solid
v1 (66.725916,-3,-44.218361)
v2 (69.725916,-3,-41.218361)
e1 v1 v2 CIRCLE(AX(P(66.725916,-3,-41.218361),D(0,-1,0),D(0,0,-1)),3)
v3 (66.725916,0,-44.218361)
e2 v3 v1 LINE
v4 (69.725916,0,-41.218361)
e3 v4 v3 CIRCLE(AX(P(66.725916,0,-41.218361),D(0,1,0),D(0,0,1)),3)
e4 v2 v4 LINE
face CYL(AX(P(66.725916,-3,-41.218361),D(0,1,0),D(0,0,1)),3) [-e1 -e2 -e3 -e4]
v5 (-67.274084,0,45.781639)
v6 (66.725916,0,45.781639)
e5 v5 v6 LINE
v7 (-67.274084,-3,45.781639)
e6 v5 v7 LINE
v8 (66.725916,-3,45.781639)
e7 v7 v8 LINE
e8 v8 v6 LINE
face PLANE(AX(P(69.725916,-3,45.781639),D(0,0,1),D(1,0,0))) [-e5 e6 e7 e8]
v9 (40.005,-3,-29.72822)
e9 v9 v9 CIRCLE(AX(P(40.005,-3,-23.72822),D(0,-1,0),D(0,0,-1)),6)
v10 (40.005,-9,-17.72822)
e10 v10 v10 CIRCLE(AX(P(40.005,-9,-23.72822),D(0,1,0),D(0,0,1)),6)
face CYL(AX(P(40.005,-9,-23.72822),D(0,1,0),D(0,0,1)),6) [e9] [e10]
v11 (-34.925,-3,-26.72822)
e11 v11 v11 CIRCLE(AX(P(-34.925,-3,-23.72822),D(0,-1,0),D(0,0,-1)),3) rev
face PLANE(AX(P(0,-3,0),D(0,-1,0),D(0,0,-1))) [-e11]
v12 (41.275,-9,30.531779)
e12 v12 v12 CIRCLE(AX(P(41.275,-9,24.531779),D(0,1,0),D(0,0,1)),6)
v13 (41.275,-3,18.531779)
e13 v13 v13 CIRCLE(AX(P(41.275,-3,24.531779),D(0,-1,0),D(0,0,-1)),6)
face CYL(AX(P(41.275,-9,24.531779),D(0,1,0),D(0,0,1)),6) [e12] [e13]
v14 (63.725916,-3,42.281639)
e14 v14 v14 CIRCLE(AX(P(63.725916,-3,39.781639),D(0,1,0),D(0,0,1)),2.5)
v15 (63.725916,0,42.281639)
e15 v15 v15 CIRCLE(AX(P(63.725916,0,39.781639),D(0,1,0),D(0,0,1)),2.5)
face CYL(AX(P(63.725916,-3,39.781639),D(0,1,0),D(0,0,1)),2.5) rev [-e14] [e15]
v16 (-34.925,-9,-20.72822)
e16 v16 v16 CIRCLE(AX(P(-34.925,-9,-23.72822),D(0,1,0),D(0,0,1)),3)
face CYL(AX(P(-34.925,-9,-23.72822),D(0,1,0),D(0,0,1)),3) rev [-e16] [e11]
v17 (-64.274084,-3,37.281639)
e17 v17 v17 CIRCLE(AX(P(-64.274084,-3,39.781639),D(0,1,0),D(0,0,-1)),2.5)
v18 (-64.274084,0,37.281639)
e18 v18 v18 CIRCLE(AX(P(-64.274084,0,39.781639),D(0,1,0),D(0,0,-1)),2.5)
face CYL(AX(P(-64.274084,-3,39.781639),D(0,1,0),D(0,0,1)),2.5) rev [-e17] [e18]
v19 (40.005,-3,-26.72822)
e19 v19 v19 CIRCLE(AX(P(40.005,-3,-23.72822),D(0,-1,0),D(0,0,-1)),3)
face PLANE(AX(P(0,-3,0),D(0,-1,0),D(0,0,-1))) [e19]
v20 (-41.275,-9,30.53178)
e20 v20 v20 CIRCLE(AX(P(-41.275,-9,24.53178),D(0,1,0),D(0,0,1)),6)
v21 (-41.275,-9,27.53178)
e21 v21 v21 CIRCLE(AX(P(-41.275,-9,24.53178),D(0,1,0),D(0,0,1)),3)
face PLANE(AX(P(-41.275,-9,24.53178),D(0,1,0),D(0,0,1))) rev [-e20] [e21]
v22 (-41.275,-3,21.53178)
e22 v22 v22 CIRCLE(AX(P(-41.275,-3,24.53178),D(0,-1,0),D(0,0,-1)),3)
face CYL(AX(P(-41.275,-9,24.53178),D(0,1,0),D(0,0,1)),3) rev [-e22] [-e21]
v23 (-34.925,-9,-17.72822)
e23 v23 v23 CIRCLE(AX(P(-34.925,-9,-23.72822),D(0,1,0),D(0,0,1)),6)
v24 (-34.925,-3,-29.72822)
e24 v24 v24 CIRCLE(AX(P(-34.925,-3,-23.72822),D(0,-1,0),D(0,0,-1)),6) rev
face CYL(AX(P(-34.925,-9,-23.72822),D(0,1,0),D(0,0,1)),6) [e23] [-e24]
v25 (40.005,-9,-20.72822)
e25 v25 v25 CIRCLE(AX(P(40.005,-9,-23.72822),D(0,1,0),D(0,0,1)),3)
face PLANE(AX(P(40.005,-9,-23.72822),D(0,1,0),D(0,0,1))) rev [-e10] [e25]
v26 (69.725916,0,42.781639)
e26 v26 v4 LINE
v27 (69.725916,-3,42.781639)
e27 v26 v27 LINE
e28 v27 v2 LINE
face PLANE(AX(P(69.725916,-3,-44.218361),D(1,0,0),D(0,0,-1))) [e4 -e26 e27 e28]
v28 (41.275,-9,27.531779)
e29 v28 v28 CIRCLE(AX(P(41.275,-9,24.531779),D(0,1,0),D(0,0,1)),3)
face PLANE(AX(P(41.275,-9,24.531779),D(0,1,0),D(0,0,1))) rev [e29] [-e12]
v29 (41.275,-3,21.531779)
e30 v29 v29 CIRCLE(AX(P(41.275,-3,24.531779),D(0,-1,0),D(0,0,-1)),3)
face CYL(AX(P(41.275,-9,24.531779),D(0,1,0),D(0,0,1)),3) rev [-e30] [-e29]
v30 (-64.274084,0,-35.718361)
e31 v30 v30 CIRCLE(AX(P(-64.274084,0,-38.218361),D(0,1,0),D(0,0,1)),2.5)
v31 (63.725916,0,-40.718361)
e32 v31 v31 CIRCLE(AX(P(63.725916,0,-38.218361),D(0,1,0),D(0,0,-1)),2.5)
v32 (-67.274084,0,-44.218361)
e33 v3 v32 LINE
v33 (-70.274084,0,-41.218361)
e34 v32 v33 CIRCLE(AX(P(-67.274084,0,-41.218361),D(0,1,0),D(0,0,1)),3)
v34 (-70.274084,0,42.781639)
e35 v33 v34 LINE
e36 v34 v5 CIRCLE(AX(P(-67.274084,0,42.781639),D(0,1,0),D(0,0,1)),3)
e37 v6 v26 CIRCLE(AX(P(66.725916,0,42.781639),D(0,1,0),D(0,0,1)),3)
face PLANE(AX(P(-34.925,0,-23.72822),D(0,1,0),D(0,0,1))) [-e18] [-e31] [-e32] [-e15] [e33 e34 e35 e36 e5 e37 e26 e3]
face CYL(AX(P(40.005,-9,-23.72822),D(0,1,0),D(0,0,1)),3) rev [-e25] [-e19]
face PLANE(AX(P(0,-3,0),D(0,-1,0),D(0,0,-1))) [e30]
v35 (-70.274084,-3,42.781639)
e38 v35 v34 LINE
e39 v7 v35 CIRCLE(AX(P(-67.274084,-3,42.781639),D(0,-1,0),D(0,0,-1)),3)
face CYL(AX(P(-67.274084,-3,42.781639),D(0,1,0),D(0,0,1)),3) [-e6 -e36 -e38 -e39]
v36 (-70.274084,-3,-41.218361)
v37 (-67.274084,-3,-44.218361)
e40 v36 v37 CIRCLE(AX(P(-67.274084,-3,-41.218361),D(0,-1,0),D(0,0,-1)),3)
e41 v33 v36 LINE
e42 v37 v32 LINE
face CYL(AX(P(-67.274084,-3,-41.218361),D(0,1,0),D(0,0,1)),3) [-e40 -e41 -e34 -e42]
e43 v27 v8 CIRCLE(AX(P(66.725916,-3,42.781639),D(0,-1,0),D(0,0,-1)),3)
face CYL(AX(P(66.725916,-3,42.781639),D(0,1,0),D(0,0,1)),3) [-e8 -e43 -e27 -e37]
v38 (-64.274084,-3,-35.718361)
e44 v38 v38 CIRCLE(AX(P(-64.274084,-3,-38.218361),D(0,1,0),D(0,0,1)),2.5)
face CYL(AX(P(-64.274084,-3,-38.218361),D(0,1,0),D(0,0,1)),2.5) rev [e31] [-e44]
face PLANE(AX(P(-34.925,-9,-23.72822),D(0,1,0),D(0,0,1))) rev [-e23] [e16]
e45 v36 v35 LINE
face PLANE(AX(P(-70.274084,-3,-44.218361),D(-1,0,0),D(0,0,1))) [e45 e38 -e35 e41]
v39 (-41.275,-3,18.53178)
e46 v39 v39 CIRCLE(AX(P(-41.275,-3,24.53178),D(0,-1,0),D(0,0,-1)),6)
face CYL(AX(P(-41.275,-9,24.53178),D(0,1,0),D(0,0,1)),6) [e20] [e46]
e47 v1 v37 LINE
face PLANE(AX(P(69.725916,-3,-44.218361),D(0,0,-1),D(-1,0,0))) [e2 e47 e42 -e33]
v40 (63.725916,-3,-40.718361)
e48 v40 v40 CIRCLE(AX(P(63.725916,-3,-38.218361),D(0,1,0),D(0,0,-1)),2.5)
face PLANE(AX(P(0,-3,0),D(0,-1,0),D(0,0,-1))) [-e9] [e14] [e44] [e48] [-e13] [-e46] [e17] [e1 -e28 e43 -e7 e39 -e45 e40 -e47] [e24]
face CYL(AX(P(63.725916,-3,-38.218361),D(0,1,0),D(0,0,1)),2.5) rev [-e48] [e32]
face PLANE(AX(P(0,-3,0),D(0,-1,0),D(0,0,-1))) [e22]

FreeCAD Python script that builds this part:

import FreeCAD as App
import Part
import Sketcher
from FreeCAD import Vector


def edges_at(feature, points):
    """Names of the edges that pass closest to the given points."""
    edges = feature.Shape.Edges
    near = lambda p: min(range(len(edges)), key=lambda i: edges[i].distToShape(Part.Vertex(*p))[0])
    return sorted({f"Edge{near(p) + 1}" for p in points})

doc = App.newDocument("Part")
body = doc.addObject("PartDesign::Body", "Body")

# Sketch on XZ plane
sketch1 = body.newObject("Sketcher::SketchObject", "Sketch")
sketch1.AttachmentSupport = (doc.getObject("XZ_Plane"), [""])
sketch1.MapMode = "FlatFace"
sketch1.addGeometry([
    Part.Circle(Vector(-34.9, -23.7, 0), Vector(0, 0, 1), 6),
    Part.Circle(Vector(-34.9, -23.7, 0), Vector(0, 0, 1), 3),
], False)
sketch1.addConstraint([
    Sketcher.Constraint("Coincident", 1, 3, 0, 3),
    Sketcher.Constraint("Diameter", 0, 12.0),
    Sketcher.Constraint("Diameter", 1, 6.0),
    Sketcher.Constraint("DistanceX", 0, 3, -1, 1, 34.925),
    Sketcher.Constraint("DistanceY", 0, 3, -1, 1, 23.72822),
])
pad1 = body.newObject("PartDesign::Pad", "Pad")
pad1.Profile = sketch1
pad1.Length = 9
body2 = doc.addObject("PartDesign::Body", "Body001")

# Sketch on XZ plane
sketch2 = body2.newObject("Sketcher::SketchObject", "Sketch001")
sketch2.AttachmentSupport = (doc.getObject("XZ_Plane001"), [""])
sketch2.MapMode = "FlatFace"
sketch2.addGeometry([
    Part.Circle(Vector(40, -23.7, 0), Vector(0, 0, 1), 6),
    Part.Circle(Vector(40, -23.7, 0), Vector(0, 0, 1), 3),
], False)
sketch2.addConstraint([
    Sketcher.Constraint("Coincident", 1, 3, 0, 3),
    Sketcher.Constraint("Diameter", 0, 12.0),
    Sketcher.Constraint("Diameter", 1, 6.0),
    Sketcher.Constraint("DistanceX", -1, 1, 0, 3, 40.005),
    Sketcher.Constraint("DistanceY", 0, 3, -1, 1, 23.72822),
])
pad2 = body2.newObject("PartDesign::Pad", "Pad001")
pad2.Profile = sketch2
pad2.Length = 9
body3 = doc.addObject("PartDesign::Body", "Body002")

# Sketch on XZ plane
sketch3 = body3.newObject("Sketcher::SketchObject", "Sketch002")
sketch3.AttachmentSupport = (doc.getObject("XZ_Plane002"), [""])
sketch3.MapMode = "FlatFace"
sketch3.addGeometry([
    Part.Circle(Vector(41.3, 24.5, 0), Vector(0, 0, 1), 6),
    Part.Circle(Vector(41.3, 24.5, 0), Vector(0, 0, 1), 3),
], False)
sketch3.addConstraint([
    Sketcher.Constraint("Coincident", 1, 3, 0, 3),
    Sketcher.Constraint("Diameter", 0, 12.0),
    Sketcher.Constraint("Diameter", 1, 6.0),
    Sketcher.Constraint("DistanceX", -1, 1, 0, 3, 41.275),
    Sketcher.Constraint("DistanceY", -1, 1, 0, 3, 24.531779),
])
pad3 = body3.newObject("PartDesign::Pad", "Pad002")
pad3.Profile = sketch3
pad3.Length = 9
body4 = doc.addObject("PartDesign::Body", "Body003")

# Sketch on XZ plane
sketch4 = body4.newObject("Sketcher::SketchObject", "Sketch003")
sketch4.AttachmentSupport = (doc.getObject("XZ_Plane003"), [""])
sketch4.MapMode = "FlatFace"
sketch4.addGeometry([
    Part.Circle(Vector(-41.3, 24.5, 0), Vector(0, 0, 1), 6),
    Part.Circle(Vector(-41.3, 24.5, 0), Vector(0, 0, 1), 3),
], False)
sketch4.addConstraint([
    Sketcher.Constraint("Coincident", 1, 3, 0, 3),
    Sketcher.Constraint("Diameter", 0, 12.0),
    Sketcher.Constraint("Diameter", 1, 6.0),
    Sketcher.Constraint("DistanceX", 0, 3, -1, 1, 41.275),
    Sketcher.Constraint("DistanceY", -1, 1, 0, 3, 24.53178),
])
pad4 = body4.newObject("PartDesign::Pad", "Pad003")
pad4.Profile = sketch4
pad4.Length = 9
body.AllowCompound = True
doc.recompute()

boolean = body.newObject("PartDesign::Boolean", "Boolean")
boolean.Type = "Fuse"
boolean.addObjects([body2])
doc.recompute()

boolean2 = body.newObject("PartDesign::Boolean", "Boolean001")
boolean2.Type = "Fuse"
boolean2.addObjects([body3])
doc.recompute()

boolean3 = body.newObject("PartDesign::Boolean", "Boolean002")
boolean3.Type = "Fuse"
boolean3.addObjects([body4])

# Sketch on XZ plane
sketch5 = body.newObject("Sketcher::SketchObject", "Sketch004")
sketch5.AttachmentSupport = (doc.getObject("XZ_Plane"), [""])
sketch5.MapMode = "FlatFace"
sketch5.addGeometry([
    Part.LineSegment(Vector(-70.3, -44.2, 0), Vector(-70.3, 45.8, 0)),  # 0
    Part.LineSegment(Vector(-70.3, 45.8, 0), Vector(69.7, 45.8, 0)),  # 1
    Part.LineSegment(Vector(69.7, 45.8, 0), Vector(69.7, -44.2, 0)),  # 2
    Part.LineSegment(Vector(69.7, -44.2, 0), Vector(-70.3, -44.2, 0)),  # 3
    Part.Circle(Vector(-64.3, 39.8, 0), Vector(0, 0, 1), 2.5),  # 4
    Part.Circle(Vector(63.7, 39.8, 0), Vector(0, 0, 1), 2.5),  # 5
    Part.Circle(Vector(-64.3, -38.2, 0), Vector(0, 0, 1), 2.5),  # 6
    Part.Circle(Vector(63.7, -38.2, 0), Vector(0, 0, 1), 2.5),  # 7
], False)
sketch5.addConstraint([
    Sketcher.Constraint("Coincident", 0, 2, 1, 1),
    Sketcher.Constraint("Coincident", 1, 2, 2, 1),
    Sketcher.Constraint("Coincident", 2, 2, 3, 1),
    Sketcher.Constraint("Coincident", 3, 2, 0, 1),
    Sketcher.Constraint("Vertical", 0),
    Sketcher.Constraint("Horizontal", 1),
    Sketcher.Constraint("Vertical", 2),
    Sketcher.Constraint("Horizontal", 3),
    Sketcher.Constraint("Equal", 4, 5),
    Sketcher.Constraint("Equal", 5, 6),
    Sketcher.Constraint("Equal", 6, 7),
    Sketcher.Constraint("Horizontal", 4, 3, 5, 3),
    Sketcher.Constraint("Horizontal", 6, 3, 7, 3),
    Sketcher.Constraint("Vertical", 4, 3, 6, 3),
    Sketcher.Constraint("Vertical", 5, 3, 7, 3),
    Sketcher.Constraint("Diameter", 4, 5.0),
    Sketcher.Constraint("DistanceX", 1, 1, 1, 2, 140.0),
    Sketcher.Constraint("DistanceY", 0, 1, 0, 2, 90.0),
    Sketcher.Constraint("DistanceX", 4, 3, 5, 3, 128.0),
    Sketcher.Constraint("DistanceY", 6, 3, 4, 3, 78.0),
    Sketcher.Constraint("DistanceX", 0, 2, 4, 3, 6.0),
    Sketcher.Constraint("DistanceY", 4, 3, 0, 2, 6.0),
    Sketcher.Constraint("DistanceY", -1, 1, 4, 3, 39.781639),
    Sketcher.Constraint("DistanceX", 4, 3, -1, 1, 64.274084),
])
pad5 = body.newObject("PartDesign::Pad", "Pad004")
pad5.Profile = sketch5
pad5.Length = 3
doc.recompute()

fillet = body.newObject("PartDesign::Fillet", "Fillet")
fillet.Base = (pad5, edges_at(pad5, [
    (69.726, -1.5, -44.218),
    (69.726, -1.5, 45.782),
    (-70.274, -1.5, 45.782),
    (-70.274, -1.5, -44.218),
]))
fillet.Radius = 3

doc.recompute()
